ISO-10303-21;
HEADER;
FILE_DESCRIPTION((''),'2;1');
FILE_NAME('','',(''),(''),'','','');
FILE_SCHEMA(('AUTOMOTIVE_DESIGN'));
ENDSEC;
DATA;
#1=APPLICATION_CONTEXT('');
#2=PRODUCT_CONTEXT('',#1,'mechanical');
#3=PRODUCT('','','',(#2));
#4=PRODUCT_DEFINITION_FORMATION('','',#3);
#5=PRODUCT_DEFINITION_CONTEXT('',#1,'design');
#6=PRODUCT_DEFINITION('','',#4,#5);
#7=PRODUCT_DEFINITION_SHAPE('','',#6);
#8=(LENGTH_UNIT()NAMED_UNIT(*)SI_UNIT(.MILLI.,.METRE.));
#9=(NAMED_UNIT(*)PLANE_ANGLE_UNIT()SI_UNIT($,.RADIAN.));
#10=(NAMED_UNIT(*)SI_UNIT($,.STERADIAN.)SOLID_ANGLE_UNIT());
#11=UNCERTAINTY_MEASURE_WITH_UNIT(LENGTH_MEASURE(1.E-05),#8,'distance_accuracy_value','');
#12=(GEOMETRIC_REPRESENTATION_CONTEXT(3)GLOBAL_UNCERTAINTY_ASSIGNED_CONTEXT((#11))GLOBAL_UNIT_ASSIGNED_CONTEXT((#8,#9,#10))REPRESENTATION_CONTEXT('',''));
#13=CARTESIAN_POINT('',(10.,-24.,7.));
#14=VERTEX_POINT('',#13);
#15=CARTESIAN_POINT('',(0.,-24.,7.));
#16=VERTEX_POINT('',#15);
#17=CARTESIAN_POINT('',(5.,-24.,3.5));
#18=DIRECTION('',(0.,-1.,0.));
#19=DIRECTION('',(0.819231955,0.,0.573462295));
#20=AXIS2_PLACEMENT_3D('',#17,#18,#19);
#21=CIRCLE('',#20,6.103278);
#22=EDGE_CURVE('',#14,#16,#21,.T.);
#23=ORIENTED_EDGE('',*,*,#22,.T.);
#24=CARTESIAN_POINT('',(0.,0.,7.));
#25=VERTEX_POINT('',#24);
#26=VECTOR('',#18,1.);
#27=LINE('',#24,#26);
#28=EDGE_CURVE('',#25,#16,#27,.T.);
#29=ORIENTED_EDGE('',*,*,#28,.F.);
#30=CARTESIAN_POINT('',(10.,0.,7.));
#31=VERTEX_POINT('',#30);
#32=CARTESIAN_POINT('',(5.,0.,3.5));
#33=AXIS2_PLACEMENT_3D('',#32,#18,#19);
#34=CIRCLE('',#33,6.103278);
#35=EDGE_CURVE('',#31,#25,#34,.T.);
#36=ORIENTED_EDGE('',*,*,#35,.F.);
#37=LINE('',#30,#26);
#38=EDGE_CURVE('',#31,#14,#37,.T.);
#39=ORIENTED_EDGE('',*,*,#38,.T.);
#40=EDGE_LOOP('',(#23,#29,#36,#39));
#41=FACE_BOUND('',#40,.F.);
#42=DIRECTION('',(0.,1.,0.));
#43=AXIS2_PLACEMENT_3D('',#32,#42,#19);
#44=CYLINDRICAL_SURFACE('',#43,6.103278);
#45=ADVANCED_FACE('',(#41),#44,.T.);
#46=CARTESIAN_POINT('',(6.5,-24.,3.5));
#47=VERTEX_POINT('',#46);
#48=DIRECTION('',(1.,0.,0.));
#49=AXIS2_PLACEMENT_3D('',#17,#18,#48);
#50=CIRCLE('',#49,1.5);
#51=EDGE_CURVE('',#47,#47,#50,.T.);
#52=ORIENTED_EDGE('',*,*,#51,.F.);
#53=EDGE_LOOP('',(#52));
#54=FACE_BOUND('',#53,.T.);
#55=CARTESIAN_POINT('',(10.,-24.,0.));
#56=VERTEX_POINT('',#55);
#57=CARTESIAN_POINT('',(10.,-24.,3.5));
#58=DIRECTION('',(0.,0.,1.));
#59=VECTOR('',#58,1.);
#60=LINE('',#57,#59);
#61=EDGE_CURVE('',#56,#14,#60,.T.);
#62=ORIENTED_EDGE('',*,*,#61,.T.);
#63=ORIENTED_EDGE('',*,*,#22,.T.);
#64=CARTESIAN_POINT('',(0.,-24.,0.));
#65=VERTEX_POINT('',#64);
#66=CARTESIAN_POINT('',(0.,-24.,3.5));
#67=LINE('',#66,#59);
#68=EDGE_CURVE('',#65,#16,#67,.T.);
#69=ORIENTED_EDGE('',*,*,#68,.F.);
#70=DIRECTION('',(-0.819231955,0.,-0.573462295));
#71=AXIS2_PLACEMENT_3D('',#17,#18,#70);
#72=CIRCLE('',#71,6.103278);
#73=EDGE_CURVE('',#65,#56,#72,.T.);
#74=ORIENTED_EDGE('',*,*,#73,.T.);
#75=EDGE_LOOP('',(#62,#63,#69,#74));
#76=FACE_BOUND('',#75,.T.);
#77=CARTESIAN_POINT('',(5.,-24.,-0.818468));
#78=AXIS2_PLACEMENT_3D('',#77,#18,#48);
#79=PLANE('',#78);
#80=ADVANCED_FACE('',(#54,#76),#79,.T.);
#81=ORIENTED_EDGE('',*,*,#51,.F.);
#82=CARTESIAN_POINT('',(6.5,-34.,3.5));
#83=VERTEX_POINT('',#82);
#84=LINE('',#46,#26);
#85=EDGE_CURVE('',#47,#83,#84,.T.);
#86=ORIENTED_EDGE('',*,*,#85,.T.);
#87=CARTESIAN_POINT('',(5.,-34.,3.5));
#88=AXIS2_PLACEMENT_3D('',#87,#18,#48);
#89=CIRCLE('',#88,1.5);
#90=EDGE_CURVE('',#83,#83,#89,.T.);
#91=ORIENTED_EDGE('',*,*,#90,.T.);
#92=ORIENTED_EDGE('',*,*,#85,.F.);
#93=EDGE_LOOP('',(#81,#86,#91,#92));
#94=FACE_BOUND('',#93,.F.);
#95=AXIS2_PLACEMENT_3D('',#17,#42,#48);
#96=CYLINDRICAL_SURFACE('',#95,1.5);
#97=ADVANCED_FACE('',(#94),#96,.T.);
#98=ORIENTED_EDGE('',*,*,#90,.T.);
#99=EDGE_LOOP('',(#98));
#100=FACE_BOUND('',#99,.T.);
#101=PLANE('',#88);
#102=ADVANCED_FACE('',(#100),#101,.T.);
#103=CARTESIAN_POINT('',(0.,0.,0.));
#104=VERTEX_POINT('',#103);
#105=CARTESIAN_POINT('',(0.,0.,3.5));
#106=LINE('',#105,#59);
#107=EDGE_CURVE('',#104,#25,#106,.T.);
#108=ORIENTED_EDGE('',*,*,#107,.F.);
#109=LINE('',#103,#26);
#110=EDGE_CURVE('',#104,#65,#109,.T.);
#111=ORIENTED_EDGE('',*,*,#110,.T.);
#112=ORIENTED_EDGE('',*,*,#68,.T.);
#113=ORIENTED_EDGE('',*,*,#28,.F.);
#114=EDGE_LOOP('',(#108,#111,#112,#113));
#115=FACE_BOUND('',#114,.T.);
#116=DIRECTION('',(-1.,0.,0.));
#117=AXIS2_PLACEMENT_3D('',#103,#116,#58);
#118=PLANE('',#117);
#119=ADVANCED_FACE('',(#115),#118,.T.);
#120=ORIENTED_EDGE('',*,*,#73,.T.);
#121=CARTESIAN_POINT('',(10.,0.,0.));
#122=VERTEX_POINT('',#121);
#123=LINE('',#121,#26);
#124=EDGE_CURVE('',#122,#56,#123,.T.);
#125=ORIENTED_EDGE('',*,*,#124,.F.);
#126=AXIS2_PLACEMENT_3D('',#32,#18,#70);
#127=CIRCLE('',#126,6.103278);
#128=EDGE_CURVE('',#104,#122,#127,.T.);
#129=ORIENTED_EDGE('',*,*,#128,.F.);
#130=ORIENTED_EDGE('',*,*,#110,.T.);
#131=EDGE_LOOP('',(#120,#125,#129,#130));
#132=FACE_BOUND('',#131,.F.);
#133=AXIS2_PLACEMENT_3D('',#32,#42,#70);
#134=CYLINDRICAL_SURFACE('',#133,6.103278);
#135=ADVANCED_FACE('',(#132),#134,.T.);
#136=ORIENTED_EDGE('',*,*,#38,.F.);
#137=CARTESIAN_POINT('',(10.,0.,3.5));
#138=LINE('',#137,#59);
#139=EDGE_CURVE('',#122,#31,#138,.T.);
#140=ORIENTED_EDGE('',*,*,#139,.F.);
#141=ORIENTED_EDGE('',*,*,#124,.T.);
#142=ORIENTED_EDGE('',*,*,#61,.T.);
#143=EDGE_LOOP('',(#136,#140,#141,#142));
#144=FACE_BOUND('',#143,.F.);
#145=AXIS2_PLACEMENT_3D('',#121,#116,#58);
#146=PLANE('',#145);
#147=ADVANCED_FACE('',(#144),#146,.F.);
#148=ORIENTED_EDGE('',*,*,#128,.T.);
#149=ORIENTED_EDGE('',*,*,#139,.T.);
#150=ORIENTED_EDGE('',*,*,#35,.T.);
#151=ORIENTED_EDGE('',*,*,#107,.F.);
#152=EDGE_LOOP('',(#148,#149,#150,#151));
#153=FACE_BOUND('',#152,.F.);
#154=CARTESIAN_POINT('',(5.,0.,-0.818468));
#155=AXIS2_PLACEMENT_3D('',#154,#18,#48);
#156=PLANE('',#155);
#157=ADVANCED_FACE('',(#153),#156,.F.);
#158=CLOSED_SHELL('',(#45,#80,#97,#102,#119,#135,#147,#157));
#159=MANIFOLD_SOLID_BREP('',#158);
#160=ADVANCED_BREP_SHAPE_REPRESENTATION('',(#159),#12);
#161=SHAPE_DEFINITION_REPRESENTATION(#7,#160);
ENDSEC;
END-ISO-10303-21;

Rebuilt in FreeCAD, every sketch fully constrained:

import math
import FreeCAD as App
import Part
import Sketcher

V = App.Vector

doc = App.newDocument("Part")
params = doc.addObject("Spreadsheet::Sheet", "Params")
for row, (alias, value) in enumerate([
    ("sketch1_height", "7 mm"),
    ("pad1_length", "24 mm"),
    ("sketch2_diameter", "3 mm"),
    ("pad2_length", "10 mm"),
], start=1):
    params.set(f"A{row}", alias)
    params.set(f"B{row}", "=" + value)
    params.setAlias(f"B{row}", alias)

body = doc.addObject("PartDesign::Body", "Body")

sketch1 = body.newObject("Sketcher::SketchObject", "Sketch")
sketch1.AttachmentSupport = (doc.getObject("XZ_Plane"), [""])
sketch1.MapMode = "FlatFace"
sketch1.addGeometry([
    Part.ArcOfCircle(Part.Circle(V(5, 3, 0), V(0, 0, 1), 6), math.radians(-145), math.radians(-35)),
    Part.LineSegment(V(10, 0, 0), V(10, 7, 0)),
    Part.ArcOfCircle(Part.Circle(V(5, 4, 0), V(0, 0, 1), 6), math.radians(35), math.radians(145)),
    Part.LineSegment(V(0, 7, 0), V(0, 0, 0)),
], False)
sketch1.addConstraint([
    Sketcher.Constraint("Coincident", 0, 2, 1, 1),
    Sketcher.Constraint("Coincident", 1, 2, 2, 1),
    Sketcher.Constraint("Coincident", 2, 2, 3, 1),
    Sketcher.Constraint("Coincident", 3, 2, 0, 1),
    Sketcher.Constraint("Vertical", 1),
    Sketcher.Constraint("Vertical", 3),
    Sketcher.Constraint("Coincident", 3, 2, -1, 1),
    Sketcher.Constraint("Coincident", 2, 3, 0, 3),
    Sketcher.Constraint("Equal", 0, 2),
    Sketcher.Constraint("PointOnObject", 0, 2, -1),
    Sketcher.Constraint("DistanceY", 1, 1, 1, 2, 7.0),
    Sketcher.Constraint("DistanceX", -1, 1, 0, 3, 5.0),
])
sketch1.setExpression("Constraints[10]", "Params.sketch1_height")
pad1 = body.newObject("PartDesign::Pad", "Pad")
pad1.Profile = sketch1
pad1.setExpression("Length", "Params.pad1_length")

sketch2 = body.newObject("Sketcher::SketchObject", "Sketch001")
sketch2.AttachmentSupport = (doc.getObject("XZ_Plane"), [""])
sketch2.MapMode = "FlatFace"
sketch2.AttachmentOffset = App.Placement(V(0, 0, 24), App.Rotation())
sketch2.addGeometry(Part.Circle(V(5, 3.5, 0), V(0, 0, 1), 1.5), False)
sketch2.addConstraint([
    Sketcher.Constraint("Diameter", 0, 3.0),
    Sketcher.Constraint("DistanceX", -1, 1, 0, 3, 5.0),
    Sketcher.Constraint("DistanceY", -1, 1, 0, 3, 3.5),
])
sketch2.setExpression("Constraints[0]", "Params.sketch2_diameter")
pad2 = body.newObject("PartDesign::Pad", "Pad001")
pad2.Profile = sketch2
pad2.setExpression("Length", "Params.pad2_length")

doc.recompute()
